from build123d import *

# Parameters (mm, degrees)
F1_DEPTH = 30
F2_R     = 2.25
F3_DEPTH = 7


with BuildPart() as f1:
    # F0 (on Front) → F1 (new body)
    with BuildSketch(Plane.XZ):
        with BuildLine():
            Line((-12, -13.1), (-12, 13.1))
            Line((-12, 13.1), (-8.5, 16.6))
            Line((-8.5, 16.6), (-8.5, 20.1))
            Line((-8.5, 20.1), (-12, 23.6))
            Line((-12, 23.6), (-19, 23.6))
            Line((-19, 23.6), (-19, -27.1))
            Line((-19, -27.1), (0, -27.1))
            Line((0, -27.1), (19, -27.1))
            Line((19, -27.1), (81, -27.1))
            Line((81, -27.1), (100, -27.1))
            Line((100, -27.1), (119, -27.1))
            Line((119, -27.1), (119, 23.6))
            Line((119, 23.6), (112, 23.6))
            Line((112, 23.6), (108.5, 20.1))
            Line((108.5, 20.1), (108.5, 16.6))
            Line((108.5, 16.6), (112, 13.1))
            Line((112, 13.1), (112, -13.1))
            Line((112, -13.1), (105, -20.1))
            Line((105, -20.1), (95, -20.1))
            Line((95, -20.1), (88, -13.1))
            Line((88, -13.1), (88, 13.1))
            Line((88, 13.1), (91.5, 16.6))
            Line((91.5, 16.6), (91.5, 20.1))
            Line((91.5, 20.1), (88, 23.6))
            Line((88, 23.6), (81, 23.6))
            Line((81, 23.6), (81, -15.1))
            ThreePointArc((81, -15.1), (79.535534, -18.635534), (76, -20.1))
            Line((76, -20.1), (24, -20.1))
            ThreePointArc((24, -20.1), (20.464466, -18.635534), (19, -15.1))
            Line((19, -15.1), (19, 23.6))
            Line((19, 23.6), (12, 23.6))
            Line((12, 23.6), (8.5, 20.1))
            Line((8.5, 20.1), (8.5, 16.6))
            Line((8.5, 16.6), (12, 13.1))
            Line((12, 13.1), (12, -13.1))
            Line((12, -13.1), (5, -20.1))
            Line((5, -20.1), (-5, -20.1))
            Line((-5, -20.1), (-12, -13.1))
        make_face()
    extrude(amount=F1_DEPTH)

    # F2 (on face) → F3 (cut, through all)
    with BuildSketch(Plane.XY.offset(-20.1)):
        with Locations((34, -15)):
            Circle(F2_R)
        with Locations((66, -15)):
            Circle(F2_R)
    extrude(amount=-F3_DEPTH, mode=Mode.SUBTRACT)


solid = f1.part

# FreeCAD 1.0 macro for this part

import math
import FreeCAD as App
import Part
import Sketcher
from FreeCAD import Vector
Q = App.Units.Quantity

doc = App.newDocument("Part")
params = doc.addObject("Spreadsheet::Sheet", "Params")
for row, (alias, value) in enumerate([
    ("sketch1_radius", "5 mm"),
    ("sketch1_width", "7 mm"),
    ("sketch1_width2", "138 mm"),
    ("sketch1_width3", "10 mm"),
    ("sketch1_width4", "52 mm"),
    ("pad1_length", "30 mm"),
    ("sketch2_diameter", "4.5 mm"),
], start=1):
    params.set(f"A{row}", alias)
    params.set(f"B{row}", "=" + value)
    params.setAlias(f"B{row}", alias)

body = doc.addObject("PartDesign::Body", "Body")

# Sketch on XZ plane
sketch1 = doc.addObject("Sketcher::SketchObject", "Sketch")
body.addObject(sketch1)
sketch1.AttachmentSupport = (doc.XZ_Plane, [""])
sketch1.MapMode = "FlatFace"
sketch1.addGeometry([
    Part.LineSegment(Vector(-12, -13.1, 0), Vector(-12, 13.1, 0)),  # 0
    Part.LineSegment(Vector(-12, 13.1, 0), Vector(-8.5, 16.6, 0)),  # 1
    Part.LineSegment(Vector(-8.5, 16.6, 0), Vector(-8.5, 20.1, 0)),  # 2
    Part.LineSegment(Vector(-8.5, 20.1, 0), Vector(-12, 23.6, 0)),  # 3
    Part.LineSegment(Vector(-12, 23.6, 0), Vector(-19, 23.6, 0)),  # 4
    Part.LineSegment(Vector(-19, 23.6, 0), Vector(-19, -27.1, 0)),  # 5
    Part.LineSegment(Vector(-19, -27.1, 0), Vector(119, -27.1, 0)),  # 6
    Part.LineSegment(Vector(119, -27.1, 0), Vector(119, 23.6, 0)),  # 7
    Part.LineSegment(Vector(119, 23.6, 0), Vector(112, 23.6, 0)),  # 8
    Part.LineSegment(Vector(112, 23.6, 0), Vector(108.5, 20.1, 0)),  # 9
    Part.LineSegment(Vector(108.5, 20.1, 0), Vector(108.5, 16.6, 0)),  # 10
    Part.LineSegment(Vector(108.5, 16.6, 0), Vector(112, 13.1, 0)),  # 11
    Part.LineSegment(Vector(112, 13.1, 0), Vector(112, -13.1, 0)),  # 12
    Part.LineSegment(Vector(112, -13.1, 0), Vector(105, -20.1, 0)),  # 13
    Part.LineSegment(Vector(105, -20.1, 0), Vector(95, -20.1, 0)),  # 14
    Part.LineSegment(Vector(95, -20.1, 0), Vector(88, -13.1, 0)),  # 15
    Part.LineSegment(Vector(88, -13.1, 0), Vector(88, 13.1, 0)),  # 16
    Part.LineSegment(Vector(88, 13.1, 0), Vector(91.5, 16.6, 0)),  # 17
    Part.LineSegment(Vector(91.5, 16.6, 0), Vector(91.5, 20.1, 0)),  # 18
    Part.LineSegment(Vector(91.5, 20.1, 0), Vector(88, 23.6, 0)),  # 19
    Part.LineSegment(Vector(88, 23.6, 0), Vector(81, 23.6, 0)),  # 20
    Part.LineSegment(Vector(81, 23.6, 0), Vector(81, -15.1, 0)),  # 21
    Part.ArcOfCircle(Part.Circle(Vector(76, -15.1, 0), Vector(0, 0, 1), 5), math.radians(-90.000004), math.radians(0.000004)),  # 22
    Part.LineSegment(Vector(76, -20.1, 0), Vector(24, -20.1, 0)),  # 23
    Part.ArcOfCircle(Part.Circle(Vector(24, -15.1, 0), Vector(0, 0, 1), 5), math.radians(179.999996), math.radians(270.000004)),  # 24
    Part.LineSegment(Vector(19, -15.1, 0), Vector(19, 23.6, 0)),  # 25
    Part.LineSegment(Vector(19, 23.6, 0), Vector(12, 23.6, 0)),  # 26
    Part.LineSegment(Vector(12, 23.6, 0), Vector(8.5, 20.1, 0)),  # 27
    Part.LineSegment(Vector(8.5, 20.1, 0), Vector(8.5, 16.6, 0)),  # 28
    Part.LineSegment(Vector(8.5, 16.6, 0), Vector(12, 13.1, 0)),  # 29
    Part.LineSegment(Vector(12, 13.1, 0), Vector(12, -13.1, 0)),  # 30
    Part.LineSegment(Vector(12, -13.1, 0), Vector(5, -20.1, 0)),  # 31
    Part.LineSegment(Vector(5, -20.1, 0), Vector(-5, -20.1, 0)),  # 32
    Part.LineSegment(Vector(-5, -20.1, 0), Vector(-12, -13.1, 0)),  # 33
], False)
sketch1.addConstraint([
    Sketcher.Constraint("Coincident", 0, 2, 1, 1),
    Sketcher.Constraint("Coincident", 1, 2, 2, 1),
    Sketcher.Constraint("Coincident", 2, 2, 3, 1),
    Sketcher.Constraint("Coincident", 3, 2, 4, 1),
    Sketcher.Constraint("Coincident", 4, 2, 5, 1),
    Sketcher.Constraint("Coincident", 5, 2, 6, 1),
    Sketcher.Constraint("Coincident", 6, 2, 7, 1),
    Sketcher.Constraint("Coincident", 7, 2, 8, 1),
    Sketcher.Constraint("Coincident", 8, 2, 9, 1),
    Sketcher.Constraint("Coincident", 9, 2, 10, 1),
    Sketcher.Constraint("Coincident", 10, 2, 11, 1),
    Sketcher.Constraint("Coincident", 11, 2, 12, 1),
    Sketcher.Constraint("Coincident", 12, 2, 13, 1),
    Sketcher.Constraint("Coincident", 13, 2, 14, 1),
    Sketcher.Constraint("Coincident", 14, 2, 15, 1),
    Sketcher.Constraint("Coincident", 15, 2, 16, 1),
    Sketcher.Constraint("Coincident", 16, 2, 17, 1),
    Sketcher.Constraint("Coincident", 17, 2, 18, 1),
    Sketcher.Constraint("Coincident", 18, 2, 19, 1),
    Sketcher.Constraint("Coincident", 19, 2, 20, 1),
    Sketcher.Constraint("Coincident", 20, 2, 21, 1),
    Sketcher.Constraint("Tangent", 21, 2, 22, 2),
    Sketcher.Constraint("Tangent", 22, 1, 23, 1),
    Sketcher.Constraint("Tangent", 23, 2, 24, 2),
    Sketcher.Constraint("Tangent", 24, 1, 25, 1),
    Sketcher.Constraint("Coincident", 25, 2, 26, 1),
    Sketcher.Constraint("Coincident", 26, 2, 27, 1),
    Sketcher.Constraint("Coincident", 27, 2, 28, 1),
    Sketcher.Constraint("Coincident", 28, 2, 29, 1),
    Sketcher.Constraint("Coincident", 29, 2, 30, 1),
    Sketcher.Constraint("Coincident", 30, 2, 31, 1),
    Sketcher.Constraint("Coincident", 31, 2, 32, 1),
    Sketcher.Constraint("Coincident", 32, 2, 33, 1),
    Sketcher.Constraint("Coincident", 33, 2, 0, 1),
    Sketcher.Constraint("Vertical", 0),
    Sketcher.Constraint("Vertical", 2),
    Sketcher.Constraint("Horizontal", 4),
    Sketcher.Constraint("Vertical", 5),
    Sketcher.Constraint("Horizontal", 6),
    Sketcher.Constraint("Vertical", 7),
    Sketcher.Constraint("Horizontal", 8),
    Sketcher.Constraint("Vertical", 10),
    Sketcher.Constraint("Vertical", 12),
    Sketcher.Constraint("Horizontal", 14),
    Sketcher.Constraint("Vertical", 16),
    Sketcher.Constraint("Vertical", 18),
    Sketcher.Constraint("Horizontal", 20),
    Sketcher.Constraint("Vertical", 21),
    Sketcher.Constraint("Horizontal", 23),
    Sketcher.Constraint("Vertical", 25),
    Sketcher.Constraint("Horizontal", 26),
    Sketcher.Constraint("Vertical", 28),
    Sketcher.Constraint("Vertical", 30),
    Sketcher.Constraint("Horizontal", 32),
    Sketcher.Constraint("Equal", 22, 24),
    Sketcher.Constraint("Symmetric", 0, 2, 30, 2, -1, 1),
    Sketcher.Constraint("Symmetric", 4, 2, 25, 2, -2),
    Sketcher.Constraint("Symmetric", 2, 2, 27, 2, -2),
    Sketcher.Constraint("Perpendicular", 1, 3),
    Sketcher.Constraint("Perpendicular", 3, 9),
    Sketcher.Constraint("Perpendicular", 9, 11),
    Sketcher.Constraint("Perpendicular", 11, 13),
    Sketcher.Constraint("Perpendicular", 13, 15),
    Sketcher.Constraint("Perpendicular", 15, 17),
    Sketcher.Constraint("Perpendicular", 17, 19),
    Sketcher.Constraint("Perpendicular", 19, 27),
    Sketcher.Constraint("Perpendicular", 27, 29),
    Sketcher.Constraint("Perpendicular", 29, 31),
    Sketcher.Constraint("Perpendicular", 31, 33),
    Sketcher.Constraint("Horizontal", 4, 2, 7, 2),
    Sketcher.Constraint("Horizontal", 2, 2, 9, 2),
    Sketcher.Constraint("Horizontal", 1, 2, 10, 2),
    Sketcher.Constraint("Horizontal", 0, 2, 11, 2),
    Sketcher.Constraint("Horizontal", 12, 2, 15, 2),
    Sketcher.Constraint("Horizontal", 11, 2, 16, 2),
    Sketcher.Constraint("Horizontal", 10, 2, 17, 2),
    Sketcher.Constraint("Horizontal", 9, 2, 18, 2),
    Sketcher.Constraint("Horizontal", 8, 2, 19, 2),
    Sketcher.Constraint("Horizontal", 14, 2, 22, 1),
    Sketcher.Constraint("Horizontal", 17, 2, 28, 2),
    Sketcher.Constraint("Horizontal", 16, 2, 29, 2),
    Sketcher.Constraint("Horizontal", 15, 2, 30, 2),
    Sketcher.Constraint("Horizontal", 23, 2, 31, 2),
    Sketcher.Constraint("Horizontal", 30, 2, 33, 2),
    Sketcher.Constraint("Vertical", 0, 2, 3, 2),
    Sketcher.Constraint("Equal", 4, 8),
    Sketcher.Constraint("Equal", 8, 20),
    Sketcher.Constraint("Equal", 14, 32),
    Sketcher.Constraint("Radius", 22, Q("5 mm")),
    Sketcher.Constraint("DistanceX", 4, 2, 4, 1, Q("7 mm")),
    Sketcher.Constraint("DistanceX", 6, 1, 6, 2, Q("138 mm")),
    Sketcher.Constraint("DistanceX", 14, 2, 14, 1, Q("10 mm")),
    Sketcher.Constraint("DistanceX", 23, 2, 23, 1, Q("52 mm")),
    Sketcher.Constraint("DistanceY", 0, 1, 0, 2, Q("26.2 mm")),
    Sketcher.Constraint("DistanceY", 2, 1, 2, 2, Q("3.5 mm")),
    Sketcher.Constraint("DistanceY", 5, 2, 5, 1, Q("50.7 mm")),
    Sketcher.Constraint("DistanceY", 21, 2, 21, 1, Q("38.7 mm")),
])
sketch1.setExpression("Constraints[88]", "Params.sketch1_radius")
sketch1.setExpression("Constraints[89]", "Params.sketch1_width")
sketch1.setExpression("Constraints[90]", "Params.sketch1_width2")
sketch1.setExpression("Constraints[91]", "Params.sketch1_width3")
sketch1.setExpression("Constraints[92]", "Params.sketch1_width4")
pad1 = doc.addObject("PartDesign::Pad", "Pad")
body.addObject(pad1)
pad1.Profile = sketch1
pad1.setExpression("Length", "Params.pad1_length")

# Sketch on XY plane
sketch2 = doc.addObject("Sketcher::SketchObject", "Sketch001")
body.addObject(sketch2)
sketch2.AttachmentSupport = (doc.XY_Plane, [""])
sketch2.MapMode = "FlatFace"
sketch2.AttachmentOffset = App.Placement(Vector(0, 0, -20.1), App.Rotation())
sketch2.addGeometry([
    Part.Circle(Vector(34, -15, 0), Vector(0, 0, 1), 2.25),
    Part.Circle(Vector(66, -15, 0), Vector(0, 0, 1), 2.25),
], False)
sketch2.addConstraint([
    Sketcher.Constraint("Equal", 0, 1),
    Sketcher.Constraint("Horizontal", 0, 3, 1, 3),
    Sketcher.Constraint("Diameter", 0, Q("4.5 mm")),
    Sketcher.Constraint("DistanceX", -1, 1, 0, 3, Q("34 mm")),
    Sketcher.Constraint("DistanceY", 0, 3, -1, 1, Q("15 mm")),
    Sketcher.Constraint("DistanceX", -1, 1, 1, 3, Q("66 mm")),
])
sketch2.setExpression("Constraints[2]", "Params.sketch2_diameter")
pocket1 = doc.addObject("PartDesign::Pocket", "Pocket")
body.addObject(pocket1)
pocket1.Profile = sketch2
pocket1.Type = "ThroughAll"

doc.recompute()
